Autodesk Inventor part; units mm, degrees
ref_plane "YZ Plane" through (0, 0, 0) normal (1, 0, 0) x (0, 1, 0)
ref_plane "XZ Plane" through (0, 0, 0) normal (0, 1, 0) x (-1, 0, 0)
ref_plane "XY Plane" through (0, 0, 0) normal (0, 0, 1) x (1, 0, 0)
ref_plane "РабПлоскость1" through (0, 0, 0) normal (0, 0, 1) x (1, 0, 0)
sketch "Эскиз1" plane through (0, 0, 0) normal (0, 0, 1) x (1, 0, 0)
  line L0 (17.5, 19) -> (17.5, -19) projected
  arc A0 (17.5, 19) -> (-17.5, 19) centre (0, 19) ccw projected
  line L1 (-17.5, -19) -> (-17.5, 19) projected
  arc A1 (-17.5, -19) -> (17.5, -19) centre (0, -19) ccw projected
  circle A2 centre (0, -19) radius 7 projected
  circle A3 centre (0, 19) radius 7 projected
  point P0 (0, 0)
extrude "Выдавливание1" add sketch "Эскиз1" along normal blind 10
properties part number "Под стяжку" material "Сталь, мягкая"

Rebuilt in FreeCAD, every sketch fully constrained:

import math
import FreeCAD as App
import Part
import Sketcher
Q = App.Units.Quantity

doc = App.newDocument("Part")
body = doc.addObject("PartDesign::Body", "Body")

# Sketch on XY plane
sketch1 = body.newObject("Sketcher::SketchObject", "Sketch")
sketch1.AttachmentSupport = (doc.getObject("XY_Plane"), [""])
sketch1.MapMode = "FlatFace"
sketch1.addGeometry([
    Part.LineSegment(App.Vector(18, -19, 0), App.Vector(18, 19, 0)),  # 0
    Part.ArcOfCircle(Part.Circle(App.Vector(0, 19, 0), App.Vector(0, 0, 1), 18), math.radians(0), math.radians(180)),  # 1
    Part.LineSegment(App.Vector(-18, 19, 0), App.Vector(-18, -19, 0)),  # 2
    Part.ArcOfCircle(Part.Circle(App.Vector(0, -19, 0), App.Vector(0, 0, 1), 18), math.radians(180), math.radians(360)),  # 3
    Part.Circle(App.Vector(0, -19, 0), App.Vector(0, 0, 1), 7),  # 4
    Part.Circle(App.Vector(0, 19, 0), App.Vector(0, 0, 1), 7),  # 5
], False)
sketch1.addConstraint([
    Sketcher.Constraint("Tangent", 0, 2, 1, 1),
    Sketcher.Constraint("Tangent", 1, 2, 2, 1),
    Sketcher.Constraint("Tangent", 2, 2, 3, 1),
    Sketcher.Constraint("Tangent", 3, 2, 0, 1),
    Sketcher.Constraint("Vertical", 0),
    Sketcher.Constraint("Vertical", 2),
    Sketcher.Constraint("Coincident", 4, 3, 3, 3),
    Sketcher.Constraint("Coincident", 5, 3, 1, 3),
    Sketcher.Constraint("Equal", 4, 5),
    Sketcher.Constraint("Symmetric", 1, 3, 3, 3, -1, 1),
    Sketcher.Constraint("Diameter", 4, Q("14 mm")),
    Sketcher.Constraint("Radius", 1, Q("17.5 mm")),
    Sketcher.Constraint("DistanceY", 0, 1, 0, 2, Q("38 mm")),
])
pad1 = body.newObject("PartDesign::Pad", "Pad")
pad1.Profile = sketch1
pad1.Length = 10

doc.recompute()
